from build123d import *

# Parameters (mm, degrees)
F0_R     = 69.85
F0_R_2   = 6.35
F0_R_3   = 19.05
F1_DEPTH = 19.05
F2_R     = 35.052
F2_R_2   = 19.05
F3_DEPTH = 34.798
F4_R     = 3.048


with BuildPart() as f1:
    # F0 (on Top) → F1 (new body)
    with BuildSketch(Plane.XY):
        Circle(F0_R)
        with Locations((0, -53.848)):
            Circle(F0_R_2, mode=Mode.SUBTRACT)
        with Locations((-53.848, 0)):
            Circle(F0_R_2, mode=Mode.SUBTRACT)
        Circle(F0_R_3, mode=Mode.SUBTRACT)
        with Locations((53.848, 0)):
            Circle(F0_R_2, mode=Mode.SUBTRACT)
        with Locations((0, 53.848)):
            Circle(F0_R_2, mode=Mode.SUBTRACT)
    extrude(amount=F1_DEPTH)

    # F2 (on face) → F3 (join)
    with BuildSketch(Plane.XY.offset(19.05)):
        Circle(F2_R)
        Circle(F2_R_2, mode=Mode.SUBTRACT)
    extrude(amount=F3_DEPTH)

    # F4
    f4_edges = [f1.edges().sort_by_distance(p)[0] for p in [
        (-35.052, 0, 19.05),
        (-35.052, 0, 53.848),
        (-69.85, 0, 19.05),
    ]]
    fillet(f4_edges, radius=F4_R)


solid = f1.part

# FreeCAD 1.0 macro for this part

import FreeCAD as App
import Part
import Sketcher
from FreeCAD import Vector
Q = App.Units.Quantity


def edges_at(feature, points):
    """Names of the edges that pass closest to the given points."""
    edges = feature.Shape.Edges
    near = lambda p: min(range(len(edges)), key=lambda i: edges[i].distToShape(Part.Vertex(*p))[0])
    return sorted({f"Edge{near(p) + 1}" for p in points})

doc = App.newDocument("Part")
body = doc.addObject("PartDesign::Body", "Body")

# Sketch on XY plane
sketch1 = body.newObject("Sketcher::SketchObject", "Sketch")
sketch1.AttachmentSupport = (doc.getObject("XY_Plane"), [""])
sketch1.MapMode = "FlatFace"
sketch1.addGeometry(Part.Circle(Vector(0, 0, 0), Vector(0, 0, 1), 70), False)
sketch1.addGeometry(Part.Circle(Vector(0, -54, 0), Vector(0, 0, 1), 6), False)
sketch1.addGeometry(Part.Circle(Vector(-54, 0, 0), Vector(0, 0, 1), 6), False)
sketch1.addGeometry(Part.Circle(Vector(0, 0, 0), Vector(0, 0, 1), 19), False)
sketch1.addGeometry(Part.Circle(Vector(54, 0, 0), Vector(0, 0, 1), 6), False)
sketch1.addGeometry(Part.Circle(Vector(0, 54, 0), Vector(0, 0, 1), 6), False)
sketch1.addConstraint(Sketcher.Constraint("Coincident", 0, 3, -1, 1))
sketch1.addConstraint(Sketcher.Constraint("Coincident", 3, 3, -1, 1))
sketch1.addConstraint(Sketcher.Constraint("Equal", 1, 2))
sketch1.addConstraint(Sketcher.Constraint("Equal", 2, 4))
sketch1.addConstraint(Sketcher.Constraint("Equal", 4, 5))
sketch1.addConstraint(Sketcher.Constraint("Symmetric", 2, 3, 4, 3, -1, 1))
sketch1.addConstraint(Sketcher.Constraint("Symmetric", 1, 3, 5, 3, -1, 1))
sketch1.addConstraint(Sketcher.Constraint("PointOnObject", 1, 3, -2))
sketch1.addConstraint(Sketcher.Constraint("PointOnObject", 2, 3, -1))
sketch1.addConstraint(Sketcher.Constraint("Diameter", 0, Q("5.5 in")))
sketch1.addConstraint(Sketcher.Constraint("Diameter", 1, Q("0.5 in")))
sketch1.addConstraint(Sketcher.Constraint("Diameter", 3, Q("1.5 in")))
sketch1.addConstraint(Sketcher.Constraint("DistanceY", 1, 3, -1, 1, Q("2.12 in")))
sketch1.addConstraint(Sketcher.Constraint("DistanceX", 2, 3, -1, 1, Q("2.12 in")))
pad1 = body.newObject("PartDesign::Pad", "Pad")
pad1.Profile = sketch1
pad1.Length = Q("0.75 in")

# Sketch on XY plane
sketch2 = body.newObject("Sketcher::SketchObject", "Sketch001")
sketch2.AttachmentSupport = (doc.getObject("XY_Plane"), [""])
sketch2.MapMode = "FlatFace"
sketch2.AttachmentOffset = App.Placement(Vector(0, 0, 0.75 * 25.4), App.Rotation())
sketch2.addGeometry(Part.Circle(Vector(0, 0, 0), Vector(0, 0, 1), 35), False)
sketch2.addGeometry(Part.Circle(Vector(0, 0, 0), Vector(0, 0, 1), 19), False)
sketch2.addConstraint(Sketcher.Constraint("Coincident", 0, 3, -1, 1))
sketch2.addConstraint(Sketcher.Constraint("Coincident", 1, 3, -1, 1))
sketch2.addConstraint(Sketcher.Constraint("Diameter", 1, Q("1.5 in")))
sketch2.addConstraint(Sketcher.Constraint("Diameter", 0, Q("2.76 in")))
pad2 = body.newObject("PartDesign::Pad", "Pad001")
pad2.Profile = sketch2
pad2.Length = Q("1.37 in")
doc.recompute()

fillet = body.newObject("PartDesign::Fillet", "Fillet")
fillet.Base = (pad2, edges_at(pad2, [(-35.052, 0, 19.05), (-35.052, 0, 53.848), (-69.85, 0, 19.05)]))
fillet.Radius = Q("0.12 in")

doc.recompute()
